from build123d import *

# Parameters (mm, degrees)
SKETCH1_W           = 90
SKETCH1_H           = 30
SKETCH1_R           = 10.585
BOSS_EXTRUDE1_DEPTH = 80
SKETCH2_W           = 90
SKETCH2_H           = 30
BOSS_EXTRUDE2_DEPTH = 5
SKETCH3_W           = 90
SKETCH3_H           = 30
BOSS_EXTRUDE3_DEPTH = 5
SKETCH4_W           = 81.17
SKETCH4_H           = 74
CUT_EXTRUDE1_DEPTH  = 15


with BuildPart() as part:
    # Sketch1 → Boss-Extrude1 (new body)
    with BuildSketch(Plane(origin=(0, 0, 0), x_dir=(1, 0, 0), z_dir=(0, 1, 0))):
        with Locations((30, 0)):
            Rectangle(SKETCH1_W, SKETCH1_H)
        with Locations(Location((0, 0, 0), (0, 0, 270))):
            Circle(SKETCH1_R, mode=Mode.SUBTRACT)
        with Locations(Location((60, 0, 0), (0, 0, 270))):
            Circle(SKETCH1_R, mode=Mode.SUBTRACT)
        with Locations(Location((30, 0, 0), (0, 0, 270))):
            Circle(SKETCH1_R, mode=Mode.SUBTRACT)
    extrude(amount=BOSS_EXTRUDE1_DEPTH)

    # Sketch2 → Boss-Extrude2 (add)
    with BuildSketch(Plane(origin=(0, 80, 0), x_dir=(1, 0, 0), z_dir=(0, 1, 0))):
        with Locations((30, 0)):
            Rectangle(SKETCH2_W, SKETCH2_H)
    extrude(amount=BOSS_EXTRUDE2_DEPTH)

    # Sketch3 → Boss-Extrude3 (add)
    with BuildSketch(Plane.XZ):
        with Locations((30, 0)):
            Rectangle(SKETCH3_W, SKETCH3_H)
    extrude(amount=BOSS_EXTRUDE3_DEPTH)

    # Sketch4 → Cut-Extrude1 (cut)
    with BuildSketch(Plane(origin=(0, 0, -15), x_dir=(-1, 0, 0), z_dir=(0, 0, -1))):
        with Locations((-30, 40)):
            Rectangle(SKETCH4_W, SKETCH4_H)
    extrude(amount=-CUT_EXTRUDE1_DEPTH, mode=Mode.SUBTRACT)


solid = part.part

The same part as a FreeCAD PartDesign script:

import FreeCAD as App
import Part
import Sketcher

V = App.Vector
Q = App.Units.Quantity


def add_polygon(sketch, points):
    """Adds a closed chain of lines whose ends are joined by coincident constraints."""
    first, n = sketch.GeometryCount, len(points)
    for a, b in zip(points, points[1:] + points[:1]):
        sketch.addGeometry(Part.LineSegment(App.Vector(*a, 0), App.Vector(*b, 0)), False)
    for i in range(n):
        sketch.addConstraint(Sketcher.Constraint("Coincident", first + i, 2, first + (i + 1) % n, 1))

doc = App.newDocument("Part")
body = doc.addObject("PartDesign::Body", "Body")

sketch1 = body.newObject("Sketcher::SketchObject", "Sketch")
sketch1.AttachmentSupport = (doc.getObject("XZ_Plane"), [""])
sketch1.MapMode = "FlatFace"
add_polygon(sketch1, [(-15, -15), (-15, 15), (75, 15), (75, -15)])
sketch1.addGeometry(Part.Circle(V(0, 0, 0), V(0, 0, 1), 11), False)
sketch1.addGeometry(Part.Circle(V(30, 0, 0), V(0, 0, 1), 11), False)
sketch1.addGeometry(Part.Circle(V(60, 0, 0), V(0, 0, 1), 11), False)
sketch1.addConstraint(Sketcher.Constraint("Vertical", 0))
sketch1.addConstraint(Sketcher.Constraint("Horizontal", 1))
sketch1.addConstraint(Sketcher.Constraint("Vertical", 2))
sketch1.addConstraint(Sketcher.Constraint("Horizontal", 3))
sketch1.addConstraint(Sketcher.Constraint("Coincident", 4, 3, -1, 1))
sketch1.addConstraint(Sketcher.Constraint("Equal", 4, 5))
sketch1.addConstraint(Sketcher.Constraint("Equal", 5, 6))
sketch1.addConstraint(Sketcher.Constraint("PointOnObject", 5, 3, -1))
sketch1.addConstraint(Sketcher.Constraint("PointOnObject", 6, 3, -1))
sketch1.addConstraint(Sketcher.Constraint("Diameter", 4, Q("21.17 mm")))
sketch1.addConstraint(Sketcher.Constraint("DistanceX", 1, 1, 1, 2, Q("90 mm")))
sketch1.addConstraint(Sketcher.Constraint("DistanceY", 0, 1, 0, 2, Q("30 mm")))
sketch1.addConstraint(Sketcher.Constraint("DistanceX", -1, 1, 5, 3, Q("30 mm")))
sketch1.addConstraint(Sketcher.Constraint("DistanceX", -1, 1, 6, 3, Q("60 mm")))
sketch1.addConstraint(Sketcher.Constraint("DistanceX", 0, 2, -1, 1, Q("15 mm")))
sketch1.addConstraint(Sketcher.Constraint("DistanceY", -1, 1, 0, 2, Q("15 mm")))
pad1 = body.newObject("PartDesign::Pad", "Pad")
pad1.Profile = sketch1
pad1.Length = 80
pad1.Reversed = True

sketch2 = body.newObject("Sketcher::SketchObject", "Sketch001")
sketch2.AttachmentSupport = (doc.getObject("XZ_Plane"), [""])
sketch2.MapMode = "FlatFace"
sketch2.AttachmentOffset = App.Placement(V(0, 0, -80), App.Rotation())
add_polygon(sketch2, [(-15, -15), (-15, 15), (75, 15), (75, -15)])
sketch2.addConstraint(Sketcher.Constraint("Vertical", 0))
sketch2.addConstraint(Sketcher.Constraint("Horizontal", 1))
sketch2.addConstraint(Sketcher.Constraint("Vertical", 2))
sketch2.addConstraint(Sketcher.Constraint("Horizontal", 3))
sketch2.addConstraint(Sketcher.Constraint("DistanceX", 1, 1, 1, 2, Q("90 mm")))
sketch2.addConstraint(Sketcher.Constraint("DistanceY", 0, 1, 0, 2, Q("30 mm")))
sketch2.addConstraint(Sketcher.Constraint("DistanceX", 0, 2, -1, 1, Q("15 mm")))
sketch2.addConstraint(Sketcher.Constraint("DistanceY", -1, 1, 0, 2, Q("15 mm")))
pad2 = body.newObject("PartDesign::Pad", "Pad001")
pad2.Profile = sketch2
pad2.Length = 5
pad2.Reversed = True

sketch3 = body.newObject("Sketcher::SketchObject", "Sketch002")
sketch3.AttachmentSupport = (doc.getObject("XZ_Plane"), [""])
sketch3.MapMode = "FlatFace"
add_polygon(sketch3, [(-15, 15), (-15, -15), (75, -15), (75, 15)])
sketch3.addConstraint(Sketcher.Constraint("Vertical", 0))
sketch3.addConstraint(Sketcher.Constraint("Horizontal", 1))
sketch3.addConstraint(Sketcher.Constraint("Vertical", 2))
sketch3.addConstraint(Sketcher.Constraint("Horizontal", 3))
sketch3.addConstraint(Sketcher.Constraint("DistanceX", 1, 1, 1, 2, Q("90 mm")))
sketch3.addConstraint(Sketcher.Constraint("DistanceY", 0, 2, 0, 1, Q("30 mm")))
sketch3.addConstraint(Sketcher.Constraint("DistanceX", 0, 2, -1, 1, Q("15 mm")))
sketch3.addConstraint(Sketcher.Constraint("DistanceY", 0, 2, -1, 1, Q("15 mm")))
pad3 = body.newObject("PartDesign::Pad", "Pad002")
pad3.Profile = sketch3
pad3.Length = 5

sketch4 = body.newObject("Sketcher::SketchObject", "Sketch003")
sketch4.AttachmentSupport = (doc.getObject("XY_Plane"), [""])
sketch4.MapMode = "FlatFace"
sketch4.AttachmentOffset = App.Placement(V(0, 0, -15), App.Rotation())
add_polygon(sketch4, [(71, 77), (71, 3), (-11, 3), (-11, 77)])
sketch4.addConstraint(Sketcher.Constraint("Vertical", 0))
sketch4.addConstraint(Sketcher.Constraint("Horizontal", 1))
sketch4.addConstraint(Sketcher.Constraint("Vertical", 2))
sketch4.addConstraint(Sketcher.Constraint("Horizontal", 3))
sketch4.addConstraint(Sketcher.Constraint("DistanceY", 0, 2, 0, 1, Q("74 mm")))
sketch4.addConstraint(Sketcher.Constraint("DistanceY", -1, 1, 0, 2, Q("3 mm")))
sketch4.addConstraint(Sketcher.Constraint("DistanceX", 1, 2, 1, 1, Q("81.17 mm")))
sketch4.addConstraint(Sketcher.Constraint("DistanceX", -1, 1, 0, 2, Q("70.585 mm")))
pocket1 = body.newObject("PartDesign::Pocket", "Pocket")
pocket1.Profile = sketch4
pocket1.Length = 15
pocket1.Reversed = True

doc.recompute()
